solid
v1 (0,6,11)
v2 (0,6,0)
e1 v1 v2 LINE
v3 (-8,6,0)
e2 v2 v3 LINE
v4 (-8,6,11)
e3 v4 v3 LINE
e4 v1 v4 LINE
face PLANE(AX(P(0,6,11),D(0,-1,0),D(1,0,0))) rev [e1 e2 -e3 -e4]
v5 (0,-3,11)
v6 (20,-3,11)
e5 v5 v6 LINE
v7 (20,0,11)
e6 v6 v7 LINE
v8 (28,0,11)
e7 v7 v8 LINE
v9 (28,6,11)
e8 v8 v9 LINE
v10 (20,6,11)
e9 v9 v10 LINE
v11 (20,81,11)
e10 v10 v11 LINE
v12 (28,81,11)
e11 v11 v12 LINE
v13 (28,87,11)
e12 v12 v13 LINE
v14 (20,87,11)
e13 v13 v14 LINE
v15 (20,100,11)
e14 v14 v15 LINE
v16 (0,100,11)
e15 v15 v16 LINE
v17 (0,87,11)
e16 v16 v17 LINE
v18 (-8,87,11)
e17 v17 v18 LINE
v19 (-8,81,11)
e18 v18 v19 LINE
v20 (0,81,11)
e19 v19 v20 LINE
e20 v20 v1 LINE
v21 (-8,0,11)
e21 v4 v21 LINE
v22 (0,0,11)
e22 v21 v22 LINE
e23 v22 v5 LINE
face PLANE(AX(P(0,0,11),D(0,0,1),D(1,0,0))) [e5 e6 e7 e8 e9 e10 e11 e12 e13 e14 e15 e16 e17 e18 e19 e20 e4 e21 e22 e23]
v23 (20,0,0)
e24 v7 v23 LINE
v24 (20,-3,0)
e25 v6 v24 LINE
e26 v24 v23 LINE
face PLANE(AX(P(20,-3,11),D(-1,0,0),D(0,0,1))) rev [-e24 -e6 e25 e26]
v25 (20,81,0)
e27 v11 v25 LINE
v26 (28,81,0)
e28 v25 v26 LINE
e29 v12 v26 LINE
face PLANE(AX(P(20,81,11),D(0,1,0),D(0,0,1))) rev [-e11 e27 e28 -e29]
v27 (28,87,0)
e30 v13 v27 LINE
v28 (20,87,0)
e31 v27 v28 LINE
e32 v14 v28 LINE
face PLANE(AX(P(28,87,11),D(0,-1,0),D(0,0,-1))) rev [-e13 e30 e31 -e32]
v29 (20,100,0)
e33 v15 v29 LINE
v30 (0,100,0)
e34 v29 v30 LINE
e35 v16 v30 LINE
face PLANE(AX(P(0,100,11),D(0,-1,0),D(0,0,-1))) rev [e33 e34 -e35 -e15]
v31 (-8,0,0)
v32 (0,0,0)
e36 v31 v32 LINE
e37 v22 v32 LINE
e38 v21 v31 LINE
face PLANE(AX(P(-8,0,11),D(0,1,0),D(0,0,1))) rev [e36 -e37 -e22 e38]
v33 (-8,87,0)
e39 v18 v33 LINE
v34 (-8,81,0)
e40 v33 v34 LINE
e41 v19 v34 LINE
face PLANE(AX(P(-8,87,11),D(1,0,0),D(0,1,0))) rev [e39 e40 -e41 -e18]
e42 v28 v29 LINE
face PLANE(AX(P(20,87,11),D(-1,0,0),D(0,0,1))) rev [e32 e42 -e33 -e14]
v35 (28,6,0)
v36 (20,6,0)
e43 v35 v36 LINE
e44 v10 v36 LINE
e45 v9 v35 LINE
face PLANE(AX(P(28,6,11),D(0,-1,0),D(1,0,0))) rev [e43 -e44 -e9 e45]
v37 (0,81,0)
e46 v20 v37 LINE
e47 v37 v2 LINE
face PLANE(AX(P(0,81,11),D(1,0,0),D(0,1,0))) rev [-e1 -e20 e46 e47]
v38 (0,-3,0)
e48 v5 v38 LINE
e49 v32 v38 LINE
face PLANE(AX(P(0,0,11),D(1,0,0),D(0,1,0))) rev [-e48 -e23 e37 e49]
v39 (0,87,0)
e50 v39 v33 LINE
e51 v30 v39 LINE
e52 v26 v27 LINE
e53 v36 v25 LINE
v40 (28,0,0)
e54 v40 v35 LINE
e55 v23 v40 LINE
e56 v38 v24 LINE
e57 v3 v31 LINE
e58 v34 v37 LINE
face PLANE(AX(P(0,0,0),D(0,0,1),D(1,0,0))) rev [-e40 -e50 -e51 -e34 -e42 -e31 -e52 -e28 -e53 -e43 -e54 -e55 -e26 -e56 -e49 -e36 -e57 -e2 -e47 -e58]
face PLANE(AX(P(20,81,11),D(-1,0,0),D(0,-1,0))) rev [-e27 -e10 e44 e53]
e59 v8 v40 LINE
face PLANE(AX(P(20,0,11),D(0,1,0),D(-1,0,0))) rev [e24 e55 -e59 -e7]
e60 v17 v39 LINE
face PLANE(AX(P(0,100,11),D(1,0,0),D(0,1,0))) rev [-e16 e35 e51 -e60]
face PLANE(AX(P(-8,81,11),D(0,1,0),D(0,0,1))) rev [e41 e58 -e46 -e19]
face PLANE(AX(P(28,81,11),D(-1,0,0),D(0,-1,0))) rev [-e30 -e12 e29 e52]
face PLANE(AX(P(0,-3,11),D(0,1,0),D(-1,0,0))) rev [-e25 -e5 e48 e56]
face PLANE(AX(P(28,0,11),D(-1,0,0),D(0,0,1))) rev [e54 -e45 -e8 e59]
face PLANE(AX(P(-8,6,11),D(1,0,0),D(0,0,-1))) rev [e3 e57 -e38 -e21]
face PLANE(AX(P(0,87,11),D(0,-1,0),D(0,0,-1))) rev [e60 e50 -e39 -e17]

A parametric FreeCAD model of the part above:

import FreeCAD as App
import Part
import Sketcher

V = App.Vector
Q = App.Units.Quantity


def add_polygon(sketch, points):
    """Adds a closed chain of lines whose ends are joined by coincident constraints."""
    first, n = sketch.GeometryCount, len(points)
    for a, b in zip(points, points[1:] + points[:1]):
        sketch.addGeometry(Part.LineSegment(App.Vector(*a, 0), App.Vector(*b, 0)), False)
    for i in range(n):
        sketch.addConstraint(Sketcher.Constraint("Coincident", first + i, 2, first + (i + 1) % n, 1))

doc = App.newDocument("Part")
params = doc.addObject("Spreadsheet::Sheet", "Params")
for row, (alias, value) in enumerate([
    ("sketch1_width", "8 mm"),
    ("sketch1_width2", "20 mm"),
    ("sketch1_height", "75 mm"),
    ("sketch1_height2", "6 mm"),
    ("sketch1_height3", "3 mm"),
    ("pad1_length", "11 mm"),
], start=1):
    params.set(f"A{row}", alias)
    params.set(f"B{row}", "=" + value)
    params.setAlias(f"B{row}", alias)

body = doc.addObject("PartDesign::Body", "Body")

# Sketch on XY plane
sketch1 = body.newObject("Sketcher::SketchObject", "Sketch")
sketch1.AttachmentSupport = (doc.getObject("XY_Plane"), [""])
sketch1.MapMode = "FlatFace"
add_polygon(sketch1, [(0, 81), (0, 6), (-8, 6), (-8, 0), (0, 0), (0, -3), (20, -3), (20, 0), (28, 0), (28, 6), (20, 6), (20, 81), (28, 81), (28, 87), (20, 87), (20, 100), (0, 100), (0, 87), (-8, 87), (-8, 81)])  # lines 0-19
sketch1.addConstraint([
    Sketcher.Constraint("Vertical", 0),
    Sketcher.Constraint("Horizontal", 1),
    Sketcher.Constraint("Vertical", 2),
    Sketcher.Constraint("Horizontal", 3),
    Sketcher.Constraint("Vertical", 4),
    Sketcher.Constraint("Horizontal", 5),
    Sketcher.Constraint("Vertical", 6),
    Sketcher.Constraint("Horizontal", 7),
    Sketcher.Constraint("Vertical", 8),
    Sketcher.Constraint("Horizontal", 9),
    Sketcher.Constraint("Vertical", 10),
    Sketcher.Constraint("Horizontal", 11),
    Sketcher.Constraint("Vertical", 12),
    Sketcher.Constraint("Horizontal", 13),
    Sketcher.Constraint("Vertical", 14),
    Sketcher.Constraint("Horizontal", 15),
    Sketcher.Constraint("Vertical", 16),
    Sketcher.Constraint("Horizontal", 17),
    Sketcher.Constraint("Vertical", 18),
    Sketcher.Constraint("Horizontal", 19),
    Sketcher.Constraint("Coincident", 3, 2, -1, 1),
    Sketcher.Constraint("PointOnObject", 0, 2, -2),
    Sketcher.Constraint("PointOnObject", 6, 2, -1),
    Sketcher.Constraint("PointOnObject", 15, 2, -2),
    Sketcher.Constraint("Horizontal", 1, 2, 8, 2),
    Sketcher.Constraint("Horizontal", 13, 2, 16, 2),
    Sketcher.Constraint("Horizontal", 11, 2, 18, 2),
    Sketcher.Constraint("Vertical", 6, 2, 9, 2),
    Sketcher.Constraint("Vertical", 8, 2, 11, 2),
    Sketcher.Constraint("Vertical", 10, 2, 13, 2),
    Sketcher.Constraint("Vertical", 2, 2, 17, 2),
    Sketcher.Constraint("Equal", 3, 7),
    Sketcher.Constraint("Equal", 8, 12),
    Sketcher.Constraint("DistanceX", 1, 2, 1, 1, Q("8 mm")),
    Sketcher.Constraint("DistanceX", 5, 1, 5, 2, Q("20 mm")),
    Sketcher.Constraint("DistanceY", 0, 2, 0, 1, Q("75 mm")),
    Sketcher.Constraint("DistanceY", 2, 2, 2, 1, Q("6 mm")),
    Sketcher.Constraint("DistanceY", 4, 2, 4, 1, Q("3 mm")),
    Sketcher.Constraint("DistanceY", 14, 1, 14, 2, Q("13 mm")),
])
sketch1.setExpression("Constraints[53]", "Params.sketch1_width")
sketch1.setExpression("Constraints[54]", "Params.sketch1_width2")
sketch1.setExpression("Constraints[55]", "Params.sketch1_height")
sketch1.setExpression("Constraints[56]", "Params.sketch1_height2")
sketch1.setExpression("Constraints[57]", "Params.sketch1_height3")
pad1 = body.newObject("PartDesign::Pad", "Pad")
pad1.Profile = sketch1
pad1.setExpression("Length", "Params.pad1_length")

doc.recompute()
